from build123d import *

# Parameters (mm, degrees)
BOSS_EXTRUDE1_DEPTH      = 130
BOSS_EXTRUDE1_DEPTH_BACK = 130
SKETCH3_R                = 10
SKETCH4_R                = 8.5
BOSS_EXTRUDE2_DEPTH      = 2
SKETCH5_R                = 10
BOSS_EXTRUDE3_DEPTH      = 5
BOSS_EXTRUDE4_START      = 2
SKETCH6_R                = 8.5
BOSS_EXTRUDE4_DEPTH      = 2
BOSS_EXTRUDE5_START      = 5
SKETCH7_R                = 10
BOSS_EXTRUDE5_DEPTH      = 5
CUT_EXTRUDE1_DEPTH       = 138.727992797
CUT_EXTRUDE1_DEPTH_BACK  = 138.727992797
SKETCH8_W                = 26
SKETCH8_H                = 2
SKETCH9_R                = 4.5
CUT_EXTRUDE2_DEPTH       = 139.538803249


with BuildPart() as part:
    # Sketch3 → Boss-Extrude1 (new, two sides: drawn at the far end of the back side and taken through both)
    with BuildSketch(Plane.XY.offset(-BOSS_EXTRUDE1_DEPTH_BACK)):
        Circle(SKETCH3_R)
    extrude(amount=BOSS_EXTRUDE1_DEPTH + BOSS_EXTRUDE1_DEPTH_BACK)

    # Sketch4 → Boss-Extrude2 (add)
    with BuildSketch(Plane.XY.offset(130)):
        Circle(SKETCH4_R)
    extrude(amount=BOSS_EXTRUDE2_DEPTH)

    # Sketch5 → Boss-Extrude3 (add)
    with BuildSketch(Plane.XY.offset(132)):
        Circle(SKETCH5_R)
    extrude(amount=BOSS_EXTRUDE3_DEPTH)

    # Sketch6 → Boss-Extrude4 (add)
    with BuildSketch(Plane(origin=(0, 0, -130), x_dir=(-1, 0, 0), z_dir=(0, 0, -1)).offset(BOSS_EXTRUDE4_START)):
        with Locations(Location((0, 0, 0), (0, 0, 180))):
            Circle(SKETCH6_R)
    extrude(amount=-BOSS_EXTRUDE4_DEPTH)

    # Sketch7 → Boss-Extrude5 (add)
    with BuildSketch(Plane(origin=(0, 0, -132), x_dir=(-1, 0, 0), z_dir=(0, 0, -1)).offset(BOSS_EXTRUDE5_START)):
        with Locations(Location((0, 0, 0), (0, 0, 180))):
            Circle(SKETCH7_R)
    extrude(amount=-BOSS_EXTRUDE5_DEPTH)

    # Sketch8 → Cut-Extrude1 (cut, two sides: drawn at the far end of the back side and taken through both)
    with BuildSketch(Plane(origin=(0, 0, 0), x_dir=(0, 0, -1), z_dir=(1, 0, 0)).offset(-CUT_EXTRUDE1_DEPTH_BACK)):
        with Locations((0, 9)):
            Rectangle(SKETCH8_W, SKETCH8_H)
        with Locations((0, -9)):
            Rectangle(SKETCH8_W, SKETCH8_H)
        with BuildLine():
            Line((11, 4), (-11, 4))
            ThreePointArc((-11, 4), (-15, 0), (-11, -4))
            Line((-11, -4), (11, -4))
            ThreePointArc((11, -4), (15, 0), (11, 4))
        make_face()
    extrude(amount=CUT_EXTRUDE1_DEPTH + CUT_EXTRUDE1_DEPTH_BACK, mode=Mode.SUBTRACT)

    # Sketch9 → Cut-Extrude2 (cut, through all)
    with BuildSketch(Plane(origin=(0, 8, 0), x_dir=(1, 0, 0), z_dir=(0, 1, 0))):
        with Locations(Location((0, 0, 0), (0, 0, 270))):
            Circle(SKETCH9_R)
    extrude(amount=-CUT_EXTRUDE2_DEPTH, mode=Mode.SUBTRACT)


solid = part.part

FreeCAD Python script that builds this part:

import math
import FreeCAD as App
import Part
import Sketcher

V = App.Vector
Q = App.Units.Quantity


def add_polygon(sketch, points):
    """Adds a closed chain of lines whose ends are joined by coincident constraints."""
    first, n = sketch.GeometryCount, len(points)
    for a, b in zip(points, points[1:] + points[:1]):
        sketch.addGeometry(Part.LineSegment(App.Vector(*a, 0), App.Vector(*b, 0)), False)
    for i in range(n):
        sketch.addConstraint(Sketcher.Constraint("Coincident", first + i, 2, first + (i + 1) % n, 1))

doc = App.newDocument("Part")
body = doc.addObject("PartDesign::Body", "Body")

# Sketch on XY plane
sketch1 = doc.addObject("Sketcher::SketchObject", "Sketch")
body.addObject(sketch1)
sketch1.AttachmentSupport = (doc.XY_Plane, [""])
sketch1.MapMode = "FlatFace"
sketch1.addGeometry(Part.Circle(V(0, 0, 0), V(0, 0, 1), 10), False)
sketch1.addConstraint([
    Sketcher.Constraint("Coincident", 0, 3, -1, 1),
    Sketcher.Constraint("Diameter", 0, Q("20 mm")),
])
pad1 = doc.addObject("PartDesign::Pad", "Pad")
body.addObject(pad1)
pad1.Profile = sketch1
pad1.Type = "TwoLengths"
pad1.Length = 130
pad1.Length2 = 130

# Sketch on XY plane
sketch2 = doc.addObject("Sketcher::SketchObject", "Sketch001")
body.addObject(sketch2)
sketch2.AttachmentSupport = (doc.XY_Plane, [""])
sketch2.MapMode = "FlatFace"
sketch2.AttachmentOffset = App.Placement(V(0, 0, 130), App.Rotation())
sketch2.addGeometry(Part.Circle(V(0, 0, 0), V(0, 0, 1), 8.5), False)
sketch2.addConstraint([
    Sketcher.Constraint("Coincident", 0, 3, -1, 1),
    Sketcher.Constraint("Diameter", 0, Q("17 mm")),
])
pad2 = doc.addObject("PartDesign::Pad", "Pad001")
body.addObject(pad2)
pad2.Profile = sketch2
pad2.Length = 2

# Sketch on XY plane
sketch3 = doc.addObject("Sketcher::SketchObject", "Sketch002")
body.addObject(sketch3)
sketch3.AttachmentSupport = (doc.XY_Plane, [""])
sketch3.MapMode = "FlatFace"
sketch3.AttachmentOffset = App.Placement(V(0, 0, 132), App.Rotation())
sketch3.addGeometry(Part.Circle(V(0, 0, 0), V(0, 0, 1), 10), False)
sketch3.addConstraint([
    Sketcher.Constraint("Coincident", 0, 3, -1, 1),
    Sketcher.Constraint("Diameter", 0, Q("20 mm")),
])
pad3 = doc.addObject("PartDesign::Pad", "Pad002")
body.addObject(pad3)
pad3.Profile = sketch3
pad3.Length = 5

# Sketch on XY plane
sketch4 = doc.addObject("Sketcher::SketchObject", "Sketch003")
body.addObject(sketch4)
sketch4.AttachmentSupport = (doc.XY_Plane, [""])
sketch4.MapMode = "FlatFace"
sketch4.AttachmentOffset = App.Placement(V(0, 0, -132), App.Rotation())
sketch4.addGeometry(Part.Circle(V(0, 0, 0), V(0, 0, 1), 8.5), False)
sketch4.addConstraint([
    Sketcher.Constraint("Coincident", 0, 3, -1, 1),
    Sketcher.Constraint("Diameter", 0, Q("17 mm")),
])
pad4 = doc.addObject("PartDesign::Pad", "Pad003")
body.addObject(pad4)
pad4.Profile = sketch4
pad4.Length = 2

# Sketch on XY plane
sketch5 = doc.addObject("Sketcher::SketchObject", "Sketch004")
body.addObject(sketch5)
sketch5.AttachmentSupport = (doc.XY_Plane, [""])
sketch5.MapMode = "FlatFace"
sketch5.AttachmentOffset = App.Placement(V(0, 0, -137), App.Rotation())
sketch5.addGeometry(Part.Circle(V(0, 0, 0), V(0, 0, 1), 10), False)
sketch5.addConstraint([
    Sketcher.Constraint("Coincident", 0, 3, -1, 1),
    Sketcher.Constraint("Diameter", 0, Q("20 mm")),
])
pad5 = doc.addObject("PartDesign::Pad", "Pad004")
body.addObject(pad5)
pad5.Profile = sketch5
pad5.Length = 5

# Sketch on YZ plane
sketch6 = doc.addObject("Sketcher::SketchObject", "Sketch005")
body.addObject(sketch6)
sketch6.AttachmentSupport = (doc.YZ_Plane, [""])
sketch6.MapMode = "FlatFace"
add_polygon(sketch6, [(10, 13), (8, 13), (8, -13), (10, -13)])  # lines 0-3
add_polygon(sketch6, [(-8, 13), (-10, 13), (-10, -13), (-8, -13)])  # lines 4-7
sketch6.addGeometry(Part.LineSegment(V(4, -11, 0), V(4, 11, 0)), False)  # 8
sketch6.addGeometry(Part.ArcOfCircle(Part.Circle(V(0, 11, 0), V(0, 0, 1), 4), math.radians(0), math.radians(180)), False)  # 9
sketch6.addGeometry(Part.LineSegment(V(-4, 11, 0), V(-4, -11, 0)), False)  # 10
sketch6.addGeometry(Part.ArcOfCircle(Part.Circle(V(0, -11, 0), V(0, 0, 1), 4), math.radians(180), math.radians(360)), False)  # 11
sketch6.addConstraint([
    Sketcher.Constraint("Tangent", 8, 2, 9, 1),
    Sketcher.Constraint("Tangent", 9, 2, 10, 1),
    Sketcher.Constraint("Tangent", 10, 2, 11, 1),
    Sketcher.Constraint("Tangent", 11, 2, 8, 1),
    Sketcher.Constraint("Horizontal", 0),
    Sketcher.Constraint("Vertical", 1),
    Sketcher.Constraint("Horizontal", 2),
    Sketcher.Constraint("Vertical", 3),
    Sketcher.Constraint("Horizontal", 4),
    Sketcher.Constraint("Vertical", 5),
    Sketcher.Constraint("Horizontal", 6),
    Sketcher.Constraint("Vertical", 7),
    Sketcher.Constraint("Vertical", 8),
    Sketcher.Constraint("Vertical", 10),
    Sketcher.Constraint("Symmetric", 9, 3, 11, 3, -1, 1),
    Sketcher.Constraint("Symmetric", 2, 2, 4, 2, -1, 1),
    Sketcher.Constraint("Symmetric", 0, 2, 6, 2, -1, 1),
    Sketcher.Constraint("Horizontal", 3, 2, 4, 2),
    Sketcher.Constraint("Radius", 9, Q("4 mm")),
    Sketcher.Constraint("DistanceX", 0, 2, 0, 1, Q("2 mm")),
    Sketcher.Constraint("DistanceY", 1, 2, 1, 1, Q("26 mm")),
    Sketcher.Constraint("DistanceY", 8, 1, 8, 2, Q("22 mm")),
    Sketcher.Constraint("DistanceX", -1, 1, 0, 2, Q("8 mm")),
])
pocket1 = doc.addObject("PartDesign::Pocket", "Pocket")
body.addObject(pocket1)
pocket1.Profile = sketch6
pocket1.Type = "ThroughAll"
pocket1.Midplane = True

# Sketch on XZ plane
sketch7 = doc.addObject("Sketcher::SketchObject", "Sketch006")
body.addObject(sketch7)
sketch7.AttachmentSupport = (doc.XZ_Plane, [""])
sketch7.MapMode = "FlatFace"
sketch7.AttachmentOffset = App.Placement(V(0, 0, -8), App.Rotation())
sketch7.addGeometry(Part.Circle(V(0, 0, 0), V(0, 0, 1), 4.5), False)
sketch7.addConstraint([
    Sketcher.Constraint("Coincident", 0, 3, -1, 1),
    Sketcher.Constraint("Diameter", 0, Q("9 mm")),
])
pocket2 = doc.addObject("PartDesign::Pocket", "Pocket001")
body.addObject(pocket2)
pocket2.Profile = sketch7
pocket2.Type = "ThroughAll"
pocket2.Reversed = True

doc.recompute()
